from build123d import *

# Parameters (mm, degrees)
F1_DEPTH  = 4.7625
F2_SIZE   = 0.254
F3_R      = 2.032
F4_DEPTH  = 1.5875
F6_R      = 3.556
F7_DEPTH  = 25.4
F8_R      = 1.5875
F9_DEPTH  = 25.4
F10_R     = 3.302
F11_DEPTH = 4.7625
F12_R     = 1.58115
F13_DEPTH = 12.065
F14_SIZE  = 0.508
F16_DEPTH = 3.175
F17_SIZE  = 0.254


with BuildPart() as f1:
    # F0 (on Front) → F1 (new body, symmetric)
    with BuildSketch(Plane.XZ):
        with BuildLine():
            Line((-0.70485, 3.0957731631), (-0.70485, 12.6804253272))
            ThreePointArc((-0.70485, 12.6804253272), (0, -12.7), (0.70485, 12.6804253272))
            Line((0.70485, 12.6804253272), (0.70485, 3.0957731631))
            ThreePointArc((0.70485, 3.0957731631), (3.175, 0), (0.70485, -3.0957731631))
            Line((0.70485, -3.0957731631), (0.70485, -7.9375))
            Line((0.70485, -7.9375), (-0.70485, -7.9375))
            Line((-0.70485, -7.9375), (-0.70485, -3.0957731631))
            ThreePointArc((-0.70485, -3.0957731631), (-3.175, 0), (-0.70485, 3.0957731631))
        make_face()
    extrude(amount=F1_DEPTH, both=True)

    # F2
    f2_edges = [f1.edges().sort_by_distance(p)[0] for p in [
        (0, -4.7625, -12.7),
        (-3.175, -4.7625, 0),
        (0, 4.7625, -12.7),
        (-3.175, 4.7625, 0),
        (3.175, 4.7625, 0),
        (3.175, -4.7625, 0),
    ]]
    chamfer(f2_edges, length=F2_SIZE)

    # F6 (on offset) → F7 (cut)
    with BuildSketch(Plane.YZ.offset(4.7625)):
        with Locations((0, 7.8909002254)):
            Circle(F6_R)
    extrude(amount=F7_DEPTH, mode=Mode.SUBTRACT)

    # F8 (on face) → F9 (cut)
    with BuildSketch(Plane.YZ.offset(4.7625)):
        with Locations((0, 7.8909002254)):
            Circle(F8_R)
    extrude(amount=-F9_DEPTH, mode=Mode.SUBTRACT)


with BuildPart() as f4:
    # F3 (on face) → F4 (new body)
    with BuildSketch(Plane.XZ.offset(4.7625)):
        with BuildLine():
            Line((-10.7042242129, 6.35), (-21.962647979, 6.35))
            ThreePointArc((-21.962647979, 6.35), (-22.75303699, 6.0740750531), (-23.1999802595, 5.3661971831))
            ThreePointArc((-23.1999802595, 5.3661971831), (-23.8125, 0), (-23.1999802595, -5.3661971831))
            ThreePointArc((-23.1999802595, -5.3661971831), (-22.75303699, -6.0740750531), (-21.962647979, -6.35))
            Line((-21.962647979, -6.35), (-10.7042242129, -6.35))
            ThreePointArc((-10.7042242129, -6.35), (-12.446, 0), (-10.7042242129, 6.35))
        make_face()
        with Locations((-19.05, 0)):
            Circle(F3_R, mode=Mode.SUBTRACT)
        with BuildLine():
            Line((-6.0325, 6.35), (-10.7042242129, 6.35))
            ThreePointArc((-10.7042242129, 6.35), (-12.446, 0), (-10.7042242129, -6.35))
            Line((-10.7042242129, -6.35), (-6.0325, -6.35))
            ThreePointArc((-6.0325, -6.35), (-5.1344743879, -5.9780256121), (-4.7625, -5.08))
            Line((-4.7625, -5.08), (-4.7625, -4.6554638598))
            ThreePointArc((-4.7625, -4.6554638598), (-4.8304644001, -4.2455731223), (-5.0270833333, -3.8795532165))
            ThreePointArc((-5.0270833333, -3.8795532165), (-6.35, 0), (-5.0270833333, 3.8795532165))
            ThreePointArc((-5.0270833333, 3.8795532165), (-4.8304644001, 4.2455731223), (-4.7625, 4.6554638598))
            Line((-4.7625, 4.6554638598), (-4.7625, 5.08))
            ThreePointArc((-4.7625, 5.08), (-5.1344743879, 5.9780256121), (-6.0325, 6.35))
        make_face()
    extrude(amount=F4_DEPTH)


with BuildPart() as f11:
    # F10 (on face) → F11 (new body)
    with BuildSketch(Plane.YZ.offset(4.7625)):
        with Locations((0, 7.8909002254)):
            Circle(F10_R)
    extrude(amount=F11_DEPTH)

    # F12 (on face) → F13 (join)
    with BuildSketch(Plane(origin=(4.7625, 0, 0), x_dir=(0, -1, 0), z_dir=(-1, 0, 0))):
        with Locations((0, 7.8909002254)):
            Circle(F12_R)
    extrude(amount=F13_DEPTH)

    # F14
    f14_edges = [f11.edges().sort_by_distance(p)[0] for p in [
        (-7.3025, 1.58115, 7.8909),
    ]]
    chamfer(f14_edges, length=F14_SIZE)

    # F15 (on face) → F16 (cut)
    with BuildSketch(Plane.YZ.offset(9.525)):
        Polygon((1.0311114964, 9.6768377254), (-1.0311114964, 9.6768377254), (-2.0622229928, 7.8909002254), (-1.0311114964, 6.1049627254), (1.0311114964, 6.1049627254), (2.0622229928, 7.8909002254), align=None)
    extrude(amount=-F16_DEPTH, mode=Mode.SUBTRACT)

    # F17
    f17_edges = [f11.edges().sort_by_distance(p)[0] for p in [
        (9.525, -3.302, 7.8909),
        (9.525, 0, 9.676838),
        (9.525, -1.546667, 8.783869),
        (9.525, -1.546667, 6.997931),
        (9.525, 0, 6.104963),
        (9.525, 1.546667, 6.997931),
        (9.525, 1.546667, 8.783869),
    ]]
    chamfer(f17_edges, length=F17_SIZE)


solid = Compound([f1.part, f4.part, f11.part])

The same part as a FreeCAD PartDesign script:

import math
import FreeCAD as App
import Part
import Sketcher

V = App.Vector
Q = App.Units.Quantity


def edges_at(feature, points):
    """Names of the edges that pass closest to the given points."""
    edges = feature.Shape.Edges
    near = lambda p: min(range(len(edges)), key=lambda i: edges[i].distToShape(Part.Vertex(*p))[0])
    return sorted({f"Edge{near(p) + 1}" for p in points})


def add_polygon(sketch, points):
    """Adds a closed chain of lines whose ends are joined by coincident constraints."""
    first, n = sketch.GeometryCount, len(points)
    for a, b in zip(points, points[1:] + points[:1]):
        sketch.addGeometry(Part.LineSegment(App.Vector(*a, 0), App.Vector(*b, 0)), False)
    for i in range(n):
        sketch.addConstraint(Sketcher.Constraint("Coincident", first + i, 2, first + (i + 1) % n, 1))

doc = App.newDocument("Part")
body = doc.addObject("PartDesign::Body", "Body")

sketch1 = doc.addObject("Sketcher::SketchObject", "Sketch")
body.addObject(sketch1)
sketch1.AttachmentSupport = (doc.XZ_Plane, [""])
sketch1.MapMode = "FlatFace"
sketch1.addGeometry([
    Part.LineSegment(V(-0.7, 3.1, 0), V(-0.7, 12.7, 0)),
    Part.ArcOfCircle(Part.Circle(V(0, 0, 0), V(0, 0, 1), 12.7), math.radians(93), math.radians(447)),
    Part.LineSegment(V(0.7, 12.7, 0), V(0.7, 3.1, 0)),
    Part.ArcOfCircle(Part.Circle(V(0, 0, 0), V(0, 0, 1), 3.2), math.radians(-77), math.radians(77)),
    Part.LineSegment(V(0.7, -3.1, 0), V(0.7, -7.9, 0)),
    Part.LineSegment(V(0.7, -7.9, 0), V(-0.7, -7.9, 0)),
    Part.LineSegment(V(-0.7, -7.9, 0), V(-0.7, -3.1, 0)),
    Part.ArcOfCircle(Part.Circle(V(0, 0, 0), V(0, 0, 1), 3.2), math.radians(103), math.radians(257)),
], False)
sketch1.addConstraint([
    Sketcher.Constraint("Coincident", 0, 2, 1, 1),
    Sketcher.Constraint("Coincident", 1, 2, 2, 1),
    Sketcher.Constraint("Coincident", 2, 2, 3, 2),
    Sketcher.Constraint("Coincident", 3, 1, 4, 1),
    Sketcher.Constraint("Coincident", 4, 2, 5, 1),
    Sketcher.Constraint("Coincident", 5, 2, 6, 1),
    Sketcher.Constraint("Coincident", 6, 2, 7, 2),
    Sketcher.Constraint("Coincident", 7, 1, 0, 1),
    Sketcher.Constraint("Vertical", 0),
    Sketcher.Constraint("Vertical", 2),
    Sketcher.Constraint("Vertical", 4),
    Sketcher.Constraint("Horizontal", 5),
    Sketcher.Constraint("Vertical", 6),
    Sketcher.Constraint("Coincident", 1, 3, -1, 1),
    Sketcher.Constraint("Coincident", 3, 3, -1, 1),
    Sketcher.Constraint("Coincident", 7, 3, -1, 1),
    Sketcher.Constraint("Equal", 3, 7),
    Sketcher.Constraint("Horizontal", 0, 2, 1, 2),
    Sketcher.Constraint("Horizontal", 3, 1, 6, 2),
    Sketcher.Constraint("Vertical", 2, 2, 3, 1),
    Sketcher.Constraint("Radius", 1, Q("0.5 in")),
    Sketcher.Constraint("Radius", 3, Q("0.125 in")),
    Sketcher.Constraint("DistanceX", 5, 2, 5, 1, Q("0.0555 in")),
    Sketcher.Constraint("DistanceY", 4, 2, -1, 1, Q("0.3125 in")),
])
pad1 = doc.addObject("PartDesign::Pad", "Pad")
body.addObject(pad1)
pad1.Profile = sketch1
pad1.Length = Q("0.375 in")
pad1.Midplane = True
doc.recompute()

chamfer = doc.addObject("PartDesign::Chamfer", "Chamfer")
body.addObject(chamfer)
chamfer.Base = (pad1, edges_at(pad1, [
    (0, -4.763, -12.7),
    (-3.175, -4.763, 0),
    (0, 4.763, -12.7),
    (-3.175, 4.763, 0),
    (3.175, 4.763, 0),
    (3.175, -4.763, 0),
]))
chamfer.Size = Q("0.01 in")

sketch2 = doc.addObject("Sketcher::SketchObject", "Sketch001")
body.addObject(sketch2)
sketch2.AttachmentSupport = (doc.YZ_Plane, [""])
sketch2.MapMode = "FlatFace"
sketch2.AttachmentOffset = App.Placement(V(0, 0, 0.1875 * 25.4), App.Rotation())
sketch2.addGeometry(Part.Circle(V(0, 7.9, 0), V(0, 0, 1), 3.6), False)
sketch2.addConstraint([
    Sketcher.Constraint("PointOnObject", 0, 3, -2),
    Sketcher.Constraint("Diameter", 0, Q("0.28 in")),
    Sketcher.Constraint("DistanceY", -1, 1, 0, 3, Q("7.8909 mm")),
])
pocket1 = doc.addObject("PartDesign::Pocket", "Pocket")
body.addObject(pocket1)
pocket1.Profile = sketch2
pocket1.Length = Q("1 in")
pocket1.Reversed = True

sketch3 = doc.addObject("Sketcher::SketchObject", "Sketch002")
body.addObject(sketch3)
sketch3.AttachmentSupport = (doc.YZ_Plane, [""])
sketch3.MapMode = "FlatFace"
sketch3.AttachmentOffset = App.Placement(V(0, 0, 0.1875 * 25.4), App.Rotation())
sketch3.addGeometry(Part.Circle(V(0, 7.9, 0), V(0, 0, 1), 1.6), False)
sketch3.addConstraint([
    Sketcher.Constraint("PointOnObject", 0, 3, -2),
    Sketcher.Constraint("Diameter", 0, Q("0.125 in")),
    Sketcher.Constraint("DistanceY", -1, 1, 0, 3, Q("7.8909 mm")),
])
pocket2 = doc.addObject("PartDesign::Pocket", "Pocket001")
body.addObject(pocket2)
pocket2.Profile = sketch3
pocket2.Length = Q("1 in")
body2 = doc.addObject("PartDesign::Body", "Body001")

sketch4 = doc.addObject("Sketcher::SketchObject", "Sketch003")
body2.addObject(sketch4)
sketch4.AttachmentSupport = (doc.getObject("XZ_Plane001"), [""])
sketch4.MapMode = "FlatFace"
sketch4.AttachmentOffset = App.Placement(V(0, 0, 0.1875 * 25.4), App.Rotation())
sketch4.addGeometry([
    Part.ArcOfCircle(Part.Circle(V(-21.96, 5.08, 0), V(0, 0, 1), 1.27), math.radians(90), math.radians(167)),
    Part.ArcOfCircle(Part.Circle(V(0, 0, 0), V(0, 0, 1), 23.81), math.radians(167), math.radians(193)),
    Part.ArcOfCircle(Part.Circle(V(-21.96, -5.08, 0), V(0, 0, 1), 1.27), math.radians(-167), math.radians(-90)),
    Part.LineSegment(V(-21.96, -6.35, 0), V(-6.03, -6.35, 0)),
    Part.ArcOfCircle(Part.Circle(V(-6.03, -5.08, 0), V(0, 0, 1), 1.27), math.radians(-90), math.radians(0)),
    Part.LineSegment(V(-4.76, -5.08, 0), V(-4.76, -4.66, 0)),
    Part.ArcOfCircle(Part.Circle(V(-6.03, -4.66, 0), V(0, 0, 1), 1.27), math.radians(0), math.radians(38)),
    Part.ArcOfCircle(Part.Circle(V(0, 0, 0), V(0, 0, 1), 6.35), math.radians(142), math.radians(218)),
    Part.ArcOfCircle(Part.Circle(V(-6.03, 4.66, 0), V(0, 0, 1), 1.27), math.radians(-38), math.radians(0)),
    Part.LineSegment(V(-4.76, 4.66, 0), V(-4.76, 5.08, 0)),
    Part.ArcOfCircle(Part.Circle(V(-6.03, 5.08, 0), V(0, 0, 1), 1.27), math.radians(0), math.radians(90)),
    Part.LineSegment(V(-6.03, 6.35, 0), V(-21.96, 6.35, 0)),
    Part.Circle(V(-19.05, 0, 0), V(0, 0, 1), 2.03),
], False)
sketch4.addConstraint([
    Sketcher.Constraint("Tangent", 0, 2, 1, 1),
    Sketcher.Constraint("Tangent", 1, 2, 2, 1),
    Sketcher.Constraint("Tangent", 2, 2, 3, 1),
    Sketcher.Constraint("Tangent", 3, 2, 4, 1),
    Sketcher.Constraint("Tangent", 4, 2, 5, 1),
    Sketcher.Constraint("Tangent", 5, 2, 6, 1),
    Sketcher.Constraint("Tangent", 6, 2, 7, 2),
    Sketcher.Constraint("Tangent", 7, 1, 8, 1),
    Sketcher.Constraint("Tangent", 8, 2, 9, 1),
    Sketcher.Constraint("Tangent", 9, 2, 10, 1),
    Sketcher.Constraint("Tangent", 10, 2, 11, 1),
    Sketcher.Constraint("Tangent", 11, 2, 0, 1),
    Sketcher.Constraint("Horizontal", 3),
    Sketcher.Constraint("Vertical", 5),
    Sketcher.Constraint("Vertical", 9),
    Sketcher.Constraint("Horizontal", 11),
    Sketcher.Constraint("Coincident", 1, 3, -1, 1),
    Sketcher.Constraint("Coincident", 7, 3, -1, 1),
    Sketcher.Constraint("Equal", 0, 2),
    Sketcher.Constraint("Equal", 2, 4),
    Sketcher.Constraint("Equal", 4, 6),
    Sketcher.Constraint("Equal", 6, 8),
    Sketcher.Constraint("Equal", 8, 10),
    Sketcher.Constraint("Symmetric", 4, 3, 10, 3, -1),
    Sketcher.Constraint("PointOnObject", 12, 3, -1),
    Sketcher.Constraint("Diameter", 12, Q("0.16 in")),
    Sketcher.Constraint("Radius", 0, Q("0.05 in")),
    Sketcher.Constraint("Radius", 7, Q("0.25 in")),
    Sketcher.Constraint("Radius", 1, Q("0.9375 in")),
    Sketcher.Constraint("DistanceY", -1, 1, 0, 3, Q("0.2 in")),
    Sketcher.Constraint("DistanceX", 12, 3, -1, 1, Q("0.75 in")),
    Sketcher.Constraint("DistanceX", 4, 2, -1, 1, Q("0.1875 in")),
])
pad2 = doc.addObject("PartDesign::Pad", "Pad001")
body2.addObject(pad2)
pad2.Profile = sketch4
pad2.Length = Q("0.0625 in")
body3 = doc.addObject("PartDesign::Body", "Body002")

sketch5 = doc.addObject("Sketcher::SketchObject", "Sketch004")
body3.addObject(sketch5)
sketch5.AttachmentSupport = (doc.getObject("YZ_Plane002"), [""])
sketch5.MapMode = "FlatFace"
sketch5.AttachmentOffset = App.Placement(V(0, 0, 0.1875 * 25.4), App.Rotation())
sketch5.addGeometry(Part.Circle(V(0, 7.9, 0), V(0, 0, 1), 3.3), False)
sketch5.addConstraint([
    Sketcher.Constraint("PointOnObject", 0, 3, -2),
    Sketcher.Constraint("Diameter", 0, Q("0.26 in")),
    Sketcher.Constraint("DistanceY", -1, 1, 0, 3, Q("7.8909 mm")),
])
pad3 = doc.addObject("PartDesign::Pad", "Pad002")
body3.addObject(pad3)
pad3.Profile = sketch5
pad3.Length = Q("0.1875 in")

sketch6 = doc.addObject("Sketcher::SketchObject", "Sketch005")
body3.addObject(sketch6)
sketch6.AttachmentSupport = (doc.getObject("YZ_Plane002"), [""])
sketch6.MapMode = "FlatFace"
sketch6.AttachmentOffset = App.Placement(V(0, 0, 0.1875 * 25.4), App.Rotation())
sketch6.addGeometry(Part.Circle(V(0, 7.9, 0), V(0, 0, 1), 1.6), False)
sketch6.addConstraint([
    Sketcher.Constraint("PointOnObject", 0, 3, -2),
    Sketcher.Constraint("Diameter", 0, Q("0.1245 in")),
    Sketcher.Constraint("DistanceY", -1, 1, 0, 3, Q("7.8909 mm")),
])
pad4 = doc.addObject("PartDesign::Pad", "Pad003")
body3.addObject(pad4)
pad4.Profile = sketch6
pad4.Length = Q("0.475 in")
pad4.Reversed = True
doc.recompute()

chamfer2 = doc.addObject("PartDesign::Chamfer", "Chamfer001")
body3.addObject(chamfer2)
chamfer2.Base = (pad4, edges_at(pad4, [(-7.303, 1.581, 7.891)]))
chamfer2.Size = Q("0.02 in")

sketch7 = doc.addObject("Sketcher::SketchObject", "Sketch006")
body3.addObject(sketch7)
sketch7.AttachmentSupport = (doc.getObject("YZ_Plane002"), [""])
sketch7.MapMode = "FlatFace"
sketch7.AttachmentOffset = App.Placement(V(0, 0, 0.375 * 25.4), App.Rotation())
add_polygon(sketch7, [(1, 9.7), (-1, 9.7), (-2.1, 7.9), (-1, 6.1), (1, 6.1), (2.1, 7.9)])
sketch7.addConstraint([
    Sketcher.Constraint("Horizontal", 0),
    Sketcher.Constraint("Horizontal", 3),
    Sketcher.Constraint("Symmetric", 1, 2, 4, 2, -2),
    Sketcher.Constraint("Parallel", 1, 4),
    Sketcher.Constraint("Parallel", 2, 5),
    Sketcher.Constraint("Vertical", 0, 2, 2, 2),
    Sketcher.Constraint("Vertical", 3, 2, 5, 2),
    Sketcher.Constraint("Angle", 1, Q("-120 deg")),
    Sketcher.Constraint("DistanceY", 2, 2, 0, 2, Q("0.140625 in")),
    Sketcher.Constraint("DistanceY", -1, 1, 1, 2, Q("7.8909 mm")),
    Sketcher.Constraint("DistanceX", 0, 2, 0, 1, Q("2.062223 mm")),
])
pocket3 = doc.addObject("PartDesign::Pocket", "Pocket002")
body3.addObject(pocket3)
pocket3.Profile = sketch7
pocket3.Length = Q("0.125 in")
doc.recompute()

chamfer3 = doc.addObject("PartDesign::Chamfer", "Chamfer002")
body3.addObject(chamfer3)
chamfer3.Base = (pocket3, edges_at(pocket3, [
    (9.525, -3.302, 7.891),
    (9.525, 0, 9.677),
    (9.525, -1.547, 8.784),
    (9.525, -1.547, 6.998),
    (9.525, 0, 6.105),
    (9.525, 1.547, 6.998),
    (9.525, 1.547, 8.784),
]))
chamfer3.Size = Q("0.01 in")

doc.recompute()
